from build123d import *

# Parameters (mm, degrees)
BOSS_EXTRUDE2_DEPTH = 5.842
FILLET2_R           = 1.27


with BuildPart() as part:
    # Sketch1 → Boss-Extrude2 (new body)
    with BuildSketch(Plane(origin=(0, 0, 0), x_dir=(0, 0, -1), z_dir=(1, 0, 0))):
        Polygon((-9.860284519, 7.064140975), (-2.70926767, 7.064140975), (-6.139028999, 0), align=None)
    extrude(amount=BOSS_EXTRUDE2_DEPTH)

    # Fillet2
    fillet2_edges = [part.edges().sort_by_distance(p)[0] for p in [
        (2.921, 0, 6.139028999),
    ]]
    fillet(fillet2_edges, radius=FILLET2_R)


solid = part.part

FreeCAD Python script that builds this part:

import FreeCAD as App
import Part
import Sketcher

V = App.Vector
Q = App.Units.Quantity


def edges_at(feature, points):
    """Names of the edges that pass closest to the given points."""
    edges = feature.Shape.Edges
    near = lambda p: min(range(len(edges)), key=lambda i: edges[i].distToShape(Part.Vertex(*p))[0])
    return sorted({f"Edge{near(p) + 1}" for p in points})


def add_polygon(sketch, points):
    """Adds a closed chain of lines whose ends are joined by coincident constraints."""
    first, n = sketch.GeometryCount, len(points)
    for a, b in zip(points, points[1:] + points[:1]):
        sketch.addGeometry(Part.LineSegment(App.Vector(*a, 0), App.Vector(*b, 0)), False)
    for i in range(n):
        sketch.addConstraint(Sketcher.Constraint("Coincident", first + i, 2, first + (i + 1) % n, 1))

doc = App.newDocument("Part")
params = doc.addObject("Spreadsheet::Sheet", "Params")
for row, (alias, value) in enumerate([
    ("pad1_length", "0.23 in"),
    ("fillet_radius", "0.05 in"),
], start=1):
    params.set(f"A{row}", alias)
    params.set(f"B{row}", "=" + value)
    params.setAlias(f"B{row}", alias)

body = doc.addObject("PartDesign::Body", "Body")

# Sketch on YZ plane
sketch1 = doc.addObject("Sketcher::SketchObject", "Sketch")
body.addObject(sketch1)
sketch1.AttachmentSupport = (doc.YZ_Plane, [""])
sketch1.MapMode = "FlatFace"
add_polygon(sketch1, [(7.064141, 2.709268), (7.064141, 9.860285), (0, 6.139029)])  # lines 0-2
sketch1.addConstraint(Sketcher.Constraint("Vertical", 0))
sketch1.addConstraint(Sketcher.Constraint("PointOnObject", 1, 2, -2))
sketch1.addConstraint(Sketcher.Constraint("DistanceY", -1, 1, 0, 2, Q("0.3882002 in")))
sketch1.addConstraint(Sketcher.Constraint("Distance", 1, Q("7.984349 mm")))
sketch1.addConstraint(Sketcher.Constraint("Distance", 2, Q("7.852729 mm")))
sketch1.addConstraint(Sketcher.Constraint("DistanceY", 0, 1, 0, 2, Q("7.151017 mm")))
pad1 = doc.addObject("PartDesign::Pad", "Pad")
body.addObject(pad1)
pad1.Profile = sketch1
pad1.setExpression("Length", "Params.pad1_length")
doc.recompute()

fillet = doc.addObject("PartDesign::Fillet", "Fillet")
body.addObject(fillet)
fillet.Base = (pad1, edges_at(pad1, [(2.921, 0, 6.139)]))
fillet.setExpression("Radius", "Params.fillet_radius")

doc.recompute()
